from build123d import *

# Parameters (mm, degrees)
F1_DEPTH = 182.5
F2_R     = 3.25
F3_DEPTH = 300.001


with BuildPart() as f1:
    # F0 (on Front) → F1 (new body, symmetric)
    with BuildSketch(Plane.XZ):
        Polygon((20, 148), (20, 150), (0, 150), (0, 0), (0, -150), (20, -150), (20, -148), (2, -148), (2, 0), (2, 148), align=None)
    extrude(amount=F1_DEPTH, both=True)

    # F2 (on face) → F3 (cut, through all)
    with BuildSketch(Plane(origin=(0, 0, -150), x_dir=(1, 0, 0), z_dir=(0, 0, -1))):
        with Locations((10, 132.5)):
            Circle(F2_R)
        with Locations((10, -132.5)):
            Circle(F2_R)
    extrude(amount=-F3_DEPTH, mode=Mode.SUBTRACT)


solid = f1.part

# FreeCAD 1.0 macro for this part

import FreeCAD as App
import Part
import Sketcher

V = App.Vector
Q = App.Units.Quantity

doc = App.newDocument("Part")
body = doc.addObject("PartDesign::Body", "Body")

# Sketch on XZ plane
sketch1 = doc.addObject("Sketcher::SketchObject", "Sketch")
body.addObject(sketch1)
sketch1.AttachmentSupport = (doc.XZ_Plane, [""])
sketch1.MapMode = "FlatFace"
sketch1.addGeometry([
    Part.LineSegment(V(20, 148, 0), V(20, 150, 0)),  # 0
    Part.LineSegment(V(20, 150, 0), V(0, 150, 0)),  # 1
    Part.LineSegment(V(0, 150, 0), V(0, -150, 0)),  # 2
    Part.LineSegment(V(0, -150, 0), V(20, -150, 0)),  # 3
    Part.LineSegment(V(20, -150, 0), V(20, -148, 0)),  # 4
    Part.LineSegment(V(20, -148, 0), V(2, -148, 0)),  # 5
    Part.LineSegment(V(2, -148, 0), V(2, 148, 0)),  # 6
    Part.LineSegment(V(2, 148, 0), V(20, 148, 0)),  # 7
], False)
sketch1.addConstraint([
    Sketcher.Constraint("Coincident", 0, 2, 1, 1),
    Sketcher.Constraint("Coincident", 1, 2, 2, 1),
    Sketcher.Constraint("Coincident", 2, 2, 3, 1),
    Sketcher.Constraint("Coincident", 3, 2, 4, 1),
    Sketcher.Constraint("Coincident", 4, 2, 5, 1),
    Sketcher.Constraint("Coincident", 5, 2, 6, 1),
    Sketcher.Constraint("Coincident", 6, 2, 7, 1),
    Sketcher.Constraint("Coincident", 7, 2, 0, 1),
    Sketcher.Constraint("Vertical", 0),
    Sketcher.Constraint("Horizontal", 1),
    Sketcher.Constraint("Vertical", 2),
    Sketcher.Constraint("Horizontal", 3),
    Sketcher.Constraint("Vertical", 4),
    Sketcher.Constraint("Horizontal", 5),
    Sketcher.Constraint("Vertical", 6),
    Sketcher.Constraint("Horizontal", 7),
    Sketcher.Constraint("Symmetric", 1, 2, 2, 2, -1, 1),
    Sketcher.Constraint("Symmetric", 4, 2, 7, 2, -1),
    Sketcher.Constraint("DistanceX", 1, 2, 1, 1, Q("20 mm")),
    Sketcher.Constraint("DistanceX", 5, 2, 5, 1, Q("18 mm")),
    Sketcher.Constraint("DistanceY", 0, 1, 0, 2, Q("2 mm")),
    Sketcher.Constraint("DistanceY", 2, 2, 2, 1, Q("300 mm")),
])
pad1 = doc.addObject("PartDesign::Pad", "Pad")
body.addObject(pad1)
pad1.Profile = sketch1
pad1.Length = 365
pad1.Midplane = True

# Sketch on XY plane
sketch2 = doc.addObject("Sketcher::SketchObject", "Sketch001")
body.addObject(sketch2)
sketch2.AttachmentSupport = (doc.XY_Plane, [""])
sketch2.MapMode = "FlatFace"
sketch2.AttachmentOffset = App.Placement(V(0, 0, -150), App.Rotation())
sketch2.addGeometry([
    Part.Circle(V(10, -132.5, 0), V(0, 0, 1), 3.2),
    Part.Circle(V(10, 132.5, 0), V(0, 0, 1), 3.2),
], False)
sketch2.addConstraint([
    Sketcher.Constraint("Equal", 0, 1),
    Sketcher.Constraint("Symmetric", 0, 3, 1, 3, -1),
    Sketcher.Constraint("Diameter", 0, Q("6.5 mm")),
    Sketcher.Constraint("DistanceX", -1, 1, 0, 3, Q("10 mm")),
    Sketcher.Constraint("DistanceY", 0, 3, 1, 3, Q("265 mm")),
])
pocket1 = doc.addObject("PartDesign::Pocket", "Pocket")
body.addObject(pocket1)
pocket1.Profile = sketch2
pocket1.Type = "ThroughAll"
pocket1.Reversed = True

doc.recompute()
